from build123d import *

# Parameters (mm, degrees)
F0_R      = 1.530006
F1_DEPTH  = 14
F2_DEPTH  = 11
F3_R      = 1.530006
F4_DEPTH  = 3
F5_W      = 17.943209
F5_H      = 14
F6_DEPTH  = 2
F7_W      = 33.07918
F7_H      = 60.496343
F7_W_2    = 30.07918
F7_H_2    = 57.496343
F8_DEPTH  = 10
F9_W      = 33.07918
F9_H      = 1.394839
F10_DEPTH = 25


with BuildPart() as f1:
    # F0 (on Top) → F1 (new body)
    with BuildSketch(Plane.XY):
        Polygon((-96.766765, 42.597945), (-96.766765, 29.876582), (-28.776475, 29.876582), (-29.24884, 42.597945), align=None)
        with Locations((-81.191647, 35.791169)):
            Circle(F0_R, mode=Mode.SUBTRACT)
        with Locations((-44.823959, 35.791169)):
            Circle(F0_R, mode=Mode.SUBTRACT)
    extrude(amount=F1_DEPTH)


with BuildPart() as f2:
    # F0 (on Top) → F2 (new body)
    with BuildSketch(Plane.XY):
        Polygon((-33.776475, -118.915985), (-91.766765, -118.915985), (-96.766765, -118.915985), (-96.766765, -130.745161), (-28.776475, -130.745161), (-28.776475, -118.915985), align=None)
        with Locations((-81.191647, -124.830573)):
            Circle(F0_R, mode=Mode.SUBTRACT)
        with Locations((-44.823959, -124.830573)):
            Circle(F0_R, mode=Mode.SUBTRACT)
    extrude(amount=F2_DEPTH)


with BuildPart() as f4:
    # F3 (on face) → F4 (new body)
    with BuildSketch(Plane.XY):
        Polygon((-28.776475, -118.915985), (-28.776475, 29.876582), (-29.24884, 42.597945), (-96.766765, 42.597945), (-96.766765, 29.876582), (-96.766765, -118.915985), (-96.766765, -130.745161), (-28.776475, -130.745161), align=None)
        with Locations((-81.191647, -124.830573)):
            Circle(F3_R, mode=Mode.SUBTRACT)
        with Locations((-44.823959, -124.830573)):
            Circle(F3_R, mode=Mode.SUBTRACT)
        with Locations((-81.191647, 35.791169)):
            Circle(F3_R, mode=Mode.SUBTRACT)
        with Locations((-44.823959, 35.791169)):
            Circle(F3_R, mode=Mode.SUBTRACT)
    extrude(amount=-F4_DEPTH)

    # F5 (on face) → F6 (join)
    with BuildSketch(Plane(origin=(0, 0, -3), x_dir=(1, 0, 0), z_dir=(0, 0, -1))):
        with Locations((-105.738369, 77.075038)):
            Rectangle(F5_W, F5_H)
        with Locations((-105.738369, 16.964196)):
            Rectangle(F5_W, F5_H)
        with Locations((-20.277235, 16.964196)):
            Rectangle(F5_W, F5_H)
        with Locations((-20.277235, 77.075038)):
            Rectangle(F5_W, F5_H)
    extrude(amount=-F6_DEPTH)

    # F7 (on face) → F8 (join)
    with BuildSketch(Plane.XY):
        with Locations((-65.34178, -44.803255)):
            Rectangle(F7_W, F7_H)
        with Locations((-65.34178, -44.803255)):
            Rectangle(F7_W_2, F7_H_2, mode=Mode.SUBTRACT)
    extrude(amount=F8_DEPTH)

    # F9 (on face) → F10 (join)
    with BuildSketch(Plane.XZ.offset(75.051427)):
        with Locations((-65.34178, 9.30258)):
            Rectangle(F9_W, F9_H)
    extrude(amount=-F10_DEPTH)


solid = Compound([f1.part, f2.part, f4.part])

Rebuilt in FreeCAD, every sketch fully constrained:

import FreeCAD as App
import Part
import Sketcher
Q = App.Units.Quantity

doc = App.newDocument("Part")
body = doc.addObject("PartDesign::Body", "Body")

# Sketch on XY plane
sketch1 = body.newObject("Sketcher::SketchObject", "Sketch")
sketch1.AttachmentSupport = (doc.getObject("XY_Plane"), [""])
sketch1.MapMode = "FlatFace"
sketch1.addGeometry([
    Part.LineSegment(App.Vector(-96.8, 42.6, 0), App.Vector(-96.8, 29.9, 0)),  # 0
    Part.LineSegment(App.Vector(-96.8, 29.9, 0), App.Vector(-28.8, 29.9, 0)),  # 1
    Part.LineSegment(App.Vector(-28.8, 29.9, 0), App.Vector(-29.2, 42.6, 0)),  # 2
    Part.LineSegment(App.Vector(-29.2, 42.6, 0), App.Vector(-96.8, 42.6, 0)),  # 3
    Part.Circle(App.Vector(-81.2, 35.8, 0), App.Vector(0, 0, 1), 1.5),  # 4
    Part.Circle(App.Vector(-44.8, 35.8, 0), App.Vector(0, 0, 1), 1.5),  # 5
], False)
sketch1.addConstraint([
    Sketcher.Constraint("Coincident", 0, 2, 1, 1),
    Sketcher.Constraint("Coincident", 1, 2, 2, 1),
    Sketcher.Constraint("Coincident", 2, 2, 3, 1),
    Sketcher.Constraint("Coincident", 3, 2, 0, 1),
    Sketcher.Constraint("Vertical", 0),
    Sketcher.Constraint("Horizontal", 1),
    Sketcher.Constraint("Horizontal", 3),
    Sketcher.Constraint("Equal", 4, 5),
    Sketcher.Constraint("Horizontal", 4, 3, 5, 3),
    Sketcher.Constraint("Diameter", 4, Q("3.060012 mm")),
    Sketcher.Constraint("DistanceX", 1, 1, 1, 2, Q("67.99029 mm")),
    Sketcher.Constraint("Distance", 2, Q("12.73013 mm")),
    Sketcher.Constraint("DistanceX", 3, 2, 3, 1, Q("67.517925 mm")),
    Sketcher.Constraint("DistanceY", -1, 1, 4, 3, Q("35.791169 mm")),
    Sketcher.Constraint("DistanceX", 5, 3, -1, 1, Q("44.823959 mm")),
    Sketcher.Constraint("DistanceY", -1, 1, 0, 2, Q("29.876582 mm")),
    Sketcher.Constraint("DistanceX", 2, 2, -1, 1, Q("29.24884 mm")),
    Sketcher.Constraint("DistanceX", 0, 2, 4, 3, Q("15.575118 mm")),
])
pad1 = body.newObject("PartDesign::Pad", "Pad")
pad1.Profile = sketch1
pad1.Length = 14
body2 = doc.addObject("PartDesign::Body", "Body001")

# Sketch on XY plane
sketch2 = body2.newObject("Sketcher::SketchObject", "Sketch001")
sketch2.AttachmentSupport = (doc.getObject("XY_Plane001"), [""])
sketch2.MapMode = "FlatFace"
sketch2.addGeometry([
    Part.LineSegment(App.Vector(-96.8, -118.9, 0), App.Vector(-96.8, -130.7, 0)),  # 0
    Part.LineSegment(App.Vector(-96.8, -130.7, 0), App.Vector(-28.8, -130.7, 0)),  # 1
    Part.LineSegment(App.Vector(-28.8, -130.7, 0), App.Vector(-28.8, -118.9, 0)),  # 2
    Part.LineSegment(App.Vector(-28.8, -118.9, 0), App.Vector(-96.8, -118.9, 0)),  # 3
    Part.Circle(App.Vector(-81.2, -124.8, 0), App.Vector(0, 0, 1), 1.5),  # 4
    Part.Circle(App.Vector(-44.8, -124.8, 0), App.Vector(0, 0, 1), 1.5),  # 5
], False)
sketch2.addConstraint([
    Sketcher.Constraint("Coincident", 0, 2, 1, 1),
    Sketcher.Constraint("Coincident", 1, 2, 2, 1),
    Sketcher.Constraint("Coincident", 2, 2, 3, 1),
    Sketcher.Constraint("Coincident", 3, 2, 0, 1),
    Sketcher.Constraint("Vertical", 0),
    Sketcher.Constraint("Horizontal", 1),
    Sketcher.Constraint("Vertical", 2),
    Sketcher.Constraint("Horizontal", 3),
    Sketcher.Constraint("Equal", 4, 5),
    Sketcher.Constraint("Horizontal", 4, 3, 5, 3),
    Sketcher.Constraint("Diameter", 4, Q("3.060012 mm")),
    Sketcher.Constraint("DistanceX", 1, 1, 1, 2, Q("67.99029 mm")),
    Sketcher.Constraint("DistanceY", 0, 2, 0, 1, Q("11.829176 mm")),
    Sketcher.Constraint("DistanceX", 5, 3, -1, 1, Q("44.823959 mm")),
    Sketcher.Constraint("DistanceY", 0, 2, -1, 1, Q("130.745161 mm")),
    Sketcher.Constraint("DistanceX", 0, 2, 4, 3, Q("15.575118 mm")),
    Sketcher.Constraint("DistanceX", 4, 3, -1, 1, Q("81.191647 mm")),
    Sketcher.Constraint("DistanceY", 4, 3, -1, 1, Q("124.830573 mm")),
])
pad2 = body2.newObject("PartDesign::Pad", "Pad001")
pad2.Profile = sketch2
pad2.Length = 11
body3 = doc.addObject("PartDesign::Body", "Body002")

# Sketch on XY plane
sketch3 = body3.newObject("Sketcher::SketchObject", "Sketch002")
sketch3.AttachmentSupport = (doc.getObject("XY_Plane002"), [""])
sketch3.MapMode = "FlatFace"
sketch3.addGeometry([
    Part.LineSegment(App.Vector(-28.8, 29.9, 0), App.Vector(-29.2, 42.6, 0)),  # 0
    Part.LineSegment(App.Vector(-29.2, 42.6, 0), App.Vector(-96.8, 42.6, 0)),  # 1
    Part.LineSegment(App.Vector(-96.8, 42.6, 0), App.Vector(-96.8, -130.7, 0)),  # 2
    Part.LineSegment(App.Vector(-96.8, -130.7, 0), App.Vector(-28.8, -130.7, 0)),  # 3
    Part.LineSegment(App.Vector(-28.8, -130.7, 0), App.Vector(-28.8, 29.9, 0)),  # 4
    Part.Circle(App.Vector(-81.2, -124.8, 0), App.Vector(0, 0, 1), 1.5),  # 5
    Part.Circle(App.Vector(-44.8, -124.8, 0), App.Vector(0, 0, 1), 1.5),  # 6
    Part.Circle(App.Vector(-81.2, 35.8, 0), App.Vector(0, 0, 1), 1.5),  # 7
    Part.Circle(App.Vector(-44.8, 35.8, 0), App.Vector(0, 0, 1), 1.5),  # 8
], False)
sketch3.addConstraint([
    Sketcher.Constraint("Coincident", 0, 2, 1, 1),
    Sketcher.Constraint("Coincident", 1, 2, 2, 1),
    Sketcher.Constraint("Coincident", 2, 2, 3, 1),
    Sketcher.Constraint("Coincident", 3, 2, 4, 1),
    Sketcher.Constraint("Coincident", 4, 2, 0, 1),
    Sketcher.Constraint("Horizontal", 1),
    Sketcher.Constraint("Vertical", 2),
    Sketcher.Constraint("Horizontal", 3),
    Sketcher.Constraint("Vertical", 4),
    Sketcher.Constraint("Equal", 5, 6),
    Sketcher.Constraint("Equal", 6, 7),
    Sketcher.Constraint("Equal", 7, 8),
    Sketcher.Constraint("Horizontal", 5, 3, 6, 3),
    Sketcher.Constraint("Horizontal", 7, 3, 8, 3),
    Sketcher.Constraint("Vertical", 5, 3, 7, 3),
    Sketcher.Constraint("Vertical", 6, 3, 8, 3),
    Sketcher.Constraint("Diameter", 5, Q("3.060012 mm")),
    Sketcher.Constraint("DistanceX", 3, 1, 3, 2, Q("67.99029 mm")),
    Sketcher.Constraint("Distance", 0, Q("12.73013 mm")),
    Sketcher.Constraint("DistanceX", 1, 2, 1, 1, Q("67.517925 mm")),
    Sketcher.Constraint("DistanceY", 2, 2, 2, 1, Q("173.343106 mm")),
    Sketcher.Constraint("DistanceX", 6, 3, -1, 1, Q("44.823959 mm")),
    Sketcher.Constraint("DistanceY", -1, 1, 7, 3, Q("35.791169 mm")),
    Sketcher.Constraint("DistanceX", 0, 2, -1, 1, Q("29.24884 mm")),
    Sketcher.Constraint("DistanceY", 2, 2, -1, 1, Q("130.745161 mm")),
    Sketcher.Constraint("DistanceY", 5, 3, 7, 3, Q("160.621742 mm")),
    Sketcher.Constraint("DistanceX", 1, 2, 7, 3, Q("15.575118 mm")),
])
pad3 = body3.newObject("PartDesign::Pad", "Pad002")
pad3.Profile = sketch3
pad3.Length = 3
pad3.Reversed = True

# Sketch on XY plane
sketch4 = body3.newObject("Sketcher::SketchObject", "Sketch003")
sketch4.AttachmentSupport = (doc.getObject("XY_Plane002"), [""])
sketch4.MapMode = "FlatFace"
sketch4.AttachmentOffset = App.Placement(App.Vector(0, 0, -3), App.Rotation())
sketch4.addGeometry([
    Part.LineSegment(App.Vector(-115, -84, 0), App.Vector(-115, -70, 0)),  # 0
    Part.LineSegment(App.Vector(-115, -70, 0), App.Vector(-97, -70, 0)),  # 1
    Part.LineSegment(App.Vector(-97, -70, 0), App.Vector(-97, -84, 0)),  # 2
    Part.LineSegment(App.Vector(-97, -84, 0), App.Vector(-115, -84, 0)),  # 3
    Part.LineSegment(App.Vector(-115, -24, 0), App.Vector(-115, -10, 0)),  # 4
    Part.LineSegment(App.Vector(-115, -10, 0), App.Vector(-97, -10, 0)),  # 5
    Part.LineSegment(App.Vector(-97, -10, 0), App.Vector(-97, -24, 0)),  # 6
    Part.LineSegment(App.Vector(-97, -24, 0), App.Vector(-115, -24, 0)),  # 7
    Part.LineSegment(App.Vector(-29, -24, 0), App.Vector(-29, -10, 0)),  # 8
    Part.LineSegment(App.Vector(-29, -10, 0), App.Vector(-11, -10, 0)),  # 9
    Part.LineSegment(App.Vector(-11, -10, 0), App.Vector(-11, -24, 0)),  # 10
    Part.LineSegment(App.Vector(-11, -24, 0), App.Vector(-29, -24, 0)),  # 11
    Part.LineSegment(App.Vector(-29, -84, 0), App.Vector(-29, -70, 0)),  # 12
    Part.LineSegment(App.Vector(-29, -70, 0), App.Vector(-11, -70, 0)),  # 13
    Part.LineSegment(App.Vector(-11, -70, 0), App.Vector(-11, -84, 0)),  # 14
    Part.LineSegment(App.Vector(-11, -84, 0), App.Vector(-29, -84, 0)),  # 15
], False)
sketch4.addConstraint([
    Sketcher.Constraint("Coincident", 0, 2, 1, 1),
    Sketcher.Constraint("Coincident", 1, 2, 2, 1),
    Sketcher.Constraint("Coincident", 2, 2, 3, 1),
    Sketcher.Constraint("Coincident", 3, 2, 0, 1),
    Sketcher.Constraint("Coincident", 4, 2, 5, 1),
    Sketcher.Constraint("Coincident", 5, 2, 6, 1),
    Sketcher.Constraint("Coincident", 6, 2, 7, 1),
    Sketcher.Constraint("Coincident", 7, 2, 4, 1),
    Sketcher.Constraint("Coincident", 8, 2, 9, 1),
    Sketcher.Constraint("Coincident", 9, 2, 10, 1),
    Sketcher.Constraint("Coincident", 10, 2, 11, 1),
    Sketcher.Constraint("Coincident", 11, 2, 8, 1),
    Sketcher.Constraint("Coincident", 12, 2, 13, 1),
    Sketcher.Constraint("Coincident", 13, 2, 14, 1),
    Sketcher.Constraint("Coincident", 14, 2, 15, 1),
    Sketcher.Constraint("Coincident", 15, 2, 12, 1),
    Sketcher.Constraint("Vertical", 0),
    Sketcher.Constraint("Horizontal", 1),
    Sketcher.Constraint("Vertical", 2),
    Sketcher.Constraint("Horizontal", 3),
    Sketcher.Constraint("Vertical", 4),
    Sketcher.Constraint("Horizontal", 5),
    Sketcher.Constraint("Vertical", 6),
    Sketcher.Constraint("Horizontal", 7),
    Sketcher.Constraint("Vertical", 8),
    Sketcher.Constraint("Horizontal", 9),
    Sketcher.Constraint("Vertical", 10),
    Sketcher.Constraint("Horizontal", 11),
    Sketcher.Constraint("Vertical", 12),
    Sketcher.Constraint("Horizontal", 13),
    Sketcher.Constraint("Vertical", 14),
    Sketcher.Constraint("Horizontal", 15),
    Sketcher.Constraint("Horizontal", 5, 2, 8, 2),
    Sketcher.Constraint("Horizontal", 7, 2, 10, 2),
    Sketcher.Constraint("Horizontal", 1, 2, 12, 2),
    Sketcher.Constraint("Horizontal", 3, 2, 14, 2),
    Sketcher.Constraint("Vertical", 3, 2, 4, 2),
    Sketcher.Constraint("Vertical", 2, 2, 5, 2),
    Sketcher.Constraint("Vertical", 11, 2, 12, 2),
    Sketcher.Constraint("Vertical", 10, 2, 13, 2),
    Sketcher.Constraint("Equal", 7, 9),
    Sketcher.Constraint("Equal", 2, 4),
    Sketcher.Constraint("DistanceY", 0, 1, 0, 2, Q("14 mm")),
    Sketcher.Constraint("DistanceX", 1, 1, 1, 2, Q("17.943209 mm")),
    Sketcher.Constraint("DistanceY", 0, 2, -1, 1, Q("70.075038 mm")),
    Sketcher.Constraint("DistanceX", 8, 2, -1, 1, Q("29.248839 mm")),
    Sketcher.Constraint("DistanceX", 0, 2, -1, 1, Q("114.709974 mm")),
    Sketcher.Constraint("DistanceY", 4, 2, -1, 1, Q("9.964196 mm")),
])
pad4 = body3.newObject("PartDesign::Pad", "Pad003")
pad4.Profile = sketch4
pad4.Length = 2

# Sketch on XY plane
sketch5 = body3.newObject("Sketcher::SketchObject", "Sketch004")
sketch5.AttachmentSupport = (doc.getObject("XY_Plane002"), [""])
sketch5.MapMode = "FlatFace"
sketch5.addGeometry([
    Part.LineSegment(App.Vector(-82, -15, 0), App.Vector(-82, -75, 0)),  # 0
    Part.LineSegment(App.Vector(-82, -75, 0), App.Vector(-49, -75, 0)),  # 1
    Part.LineSegment(App.Vector(-49, -75, 0), App.Vector(-49, -15, 0)),  # 2
    Part.LineSegment(App.Vector(-49, -15, 0), App.Vector(-82, -15, 0)),  # 3
    Part.LineSegment(App.Vector(-50, -74, 0), App.Vector(-80, -74, 0)),  # 4
    Part.LineSegment(App.Vector(-80, -74, 0), App.Vector(-80, -16, 0)),  # 5
    Part.LineSegment(App.Vector(-80, -16, 0), App.Vector(-50, -16, 0)),  # 6
    Part.LineSegment(App.Vector(-50, -16, 0), App.Vector(-50, -74, 0)),  # 7
], False)
sketch5.addConstraint([
    Sketcher.Constraint("Coincident", 0, 2, 1, 1),
    Sketcher.Constraint("Coincident", 1, 2, 2, 1),
    Sketcher.Constraint("Coincident", 2, 2, 3, 1),
    Sketcher.Constraint("Coincident", 3, 2, 0, 1),
    Sketcher.Constraint("Coincident", 4, 2, 5, 1),
    Sketcher.Constraint("Coincident", 5, 2, 6, 1),
    Sketcher.Constraint("Coincident", 6, 2, 7, 1),
    Sketcher.Constraint("Coincident", 7, 2, 4, 1),
    Sketcher.Constraint("Vertical", 0),
    Sketcher.Constraint("Horizontal", 1),
    Sketcher.Constraint("Vertical", 2),
    Sketcher.Constraint("Horizontal", 3),
    Sketcher.Constraint("Horizontal", 4),
    Sketcher.Constraint("Vertical", 5),
    Sketcher.Constraint("Horizontal", 6),
    Sketcher.Constraint("Vertical", 7),
    Sketcher.Constraint("DistanceX", 0, 2, 4, 2, Q("1.5 mm")),
    Sketcher.Constraint("DistanceY", 0, 2, 4, 2, Q("1.5 mm")),
    Sketcher.Constraint("DistanceY", 5, 2, 3, 2, Q("1.5 mm")),
    Sketcher.Constraint("DistanceX", 6, 2, 2, 2, Q("1.5 mm")),
    Sketcher.Constraint("DistanceX", 1, 1, 1, 2, Q("33.07918 mm")),
    Sketcher.Constraint("DistanceY", 0, 2, 0, 1, Q("60.496343 mm")),
    Sketcher.Constraint("DistanceX", 0, 2, -1, 1, Q("81.88137 mm")),
    Sketcher.Constraint("DistanceY", 0, 2, -1, 1, Q("75.051427 mm")),
])
pad5 = body3.newObject("PartDesign::Pad", "Pad004")
pad5.Profile = sketch5
pad5.Length = 10

# Sketch on XZ plane
sketch6 = body3.newObject("Sketcher::SketchObject", "Sketch005")
sketch6.AttachmentSupport = (doc.getObject("XZ_Plane002"), [""])
sketch6.MapMode = "FlatFace"
sketch6.AttachmentOffset = App.Placement(App.Vector(0, 0, 75.051427), App.Rotation())
sketch6.addGeometry([
    Part.LineSegment(App.Vector(-81.9, 10, 0), App.Vector(-81.9, 8.6, 0)),
    Part.LineSegment(App.Vector(-81.9, 8.6, 0), App.Vector(-48.8, 8.6, 0)),
    Part.LineSegment(App.Vector(-48.8, 8.6, 0), App.Vector(-48.8, 10, 0)),
    Part.LineSegment(App.Vector(-48.8, 10, 0), App.Vector(-81.9, 10, 0)),
], False)
sketch6.addConstraint([
    Sketcher.Constraint("Coincident", 0, 2, 1, 1),
    Sketcher.Constraint("Coincident", 1, 2, 2, 1),
    Sketcher.Constraint("Coincident", 2, 2, 3, 1),
    Sketcher.Constraint("Coincident", 3, 2, 0, 1),
    Sketcher.Constraint("Vertical", 0),
    Sketcher.Constraint("Horizontal", 1),
    Sketcher.Constraint("Vertical", 2),
    Sketcher.Constraint("Horizontal", 3),
    Sketcher.Constraint("DistanceY", -1, 1, 2, 2, Q("9.999999 mm")),
    Sketcher.Constraint("DistanceX", 1, 1, 1, 2, Q("33.07918 mm")),
    Sketcher.Constraint("DistanceY", 0, 2, 0, 1, Q("1.394839 mm")),
    Sketcher.Constraint("DistanceX", 0, 2, -1, 1, Q("81.88137 mm")),
])
pad6 = body3.newObject("PartDesign::Pad", "Pad005")
pad6.Profile = sketch6
pad6.Length = 25
pad6.Reversed = True

doc.recompute()
